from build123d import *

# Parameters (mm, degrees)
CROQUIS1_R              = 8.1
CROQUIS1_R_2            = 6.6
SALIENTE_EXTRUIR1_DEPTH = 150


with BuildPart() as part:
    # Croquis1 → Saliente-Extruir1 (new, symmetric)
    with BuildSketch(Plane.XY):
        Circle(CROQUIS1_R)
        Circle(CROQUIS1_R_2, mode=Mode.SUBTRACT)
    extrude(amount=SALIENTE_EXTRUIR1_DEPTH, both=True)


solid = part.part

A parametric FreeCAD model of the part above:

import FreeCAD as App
import Part
import Sketcher

doc = App.newDocument("Part")
params = doc.addObject("Spreadsheet::Sheet", "Params")
for row, (alias, value) in enumerate([
    ("sketch1_diameter", "16.2 mm"),
    ("sketch1_diameter2", "13.2 mm"),
    ("pad1_length", "300 mm"),
], start=1):
    params.set(f"A{row}", alias)
    params.set(f"B{row}", "=" + value)
    params.setAlias(f"B{row}", alias)

body = doc.addObject("PartDesign::Body", "Body")

# Sketch on XY plane
sketch1 = body.newObject("Sketcher::SketchObject", "Sketch")
sketch1.AttachmentSupport = (doc.getObject("XY_Plane"), [""])
sketch1.MapMode = "FlatFace"
sketch1.addGeometry([
    Part.Circle(App.Vector(0, 0, 0), App.Vector(0, 0, 1), 8),
    Part.Circle(App.Vector(0, 0, 0), App.Vector(0, 0, 1), 7),
], False)
sketch1.addConstraint([
    Sketcher.Constraint("Coincident", 0, 3, -1, 1),
    Sketcher.Constraint("Coincident", 1, 3, -1, 1),
    Sketcher.Constraint("Diameter", 0, 16.2),
    Sketcher.Constraint("Diameter", 1, 13.2),
])
sketch1.setExpression("Constraints[2]", "Params.sketch1_diameter")
sketch1.setExpression("Constraints[3]", "Params.sketch1_diameter2")
pad1 = body.newObject("PartDesign::Pad", "Pad")
pad1.Profile = sketch1
pad1.setExpression("Length", "Params.pad1_length")
pad1.Midplane = True

doc.recompute()
